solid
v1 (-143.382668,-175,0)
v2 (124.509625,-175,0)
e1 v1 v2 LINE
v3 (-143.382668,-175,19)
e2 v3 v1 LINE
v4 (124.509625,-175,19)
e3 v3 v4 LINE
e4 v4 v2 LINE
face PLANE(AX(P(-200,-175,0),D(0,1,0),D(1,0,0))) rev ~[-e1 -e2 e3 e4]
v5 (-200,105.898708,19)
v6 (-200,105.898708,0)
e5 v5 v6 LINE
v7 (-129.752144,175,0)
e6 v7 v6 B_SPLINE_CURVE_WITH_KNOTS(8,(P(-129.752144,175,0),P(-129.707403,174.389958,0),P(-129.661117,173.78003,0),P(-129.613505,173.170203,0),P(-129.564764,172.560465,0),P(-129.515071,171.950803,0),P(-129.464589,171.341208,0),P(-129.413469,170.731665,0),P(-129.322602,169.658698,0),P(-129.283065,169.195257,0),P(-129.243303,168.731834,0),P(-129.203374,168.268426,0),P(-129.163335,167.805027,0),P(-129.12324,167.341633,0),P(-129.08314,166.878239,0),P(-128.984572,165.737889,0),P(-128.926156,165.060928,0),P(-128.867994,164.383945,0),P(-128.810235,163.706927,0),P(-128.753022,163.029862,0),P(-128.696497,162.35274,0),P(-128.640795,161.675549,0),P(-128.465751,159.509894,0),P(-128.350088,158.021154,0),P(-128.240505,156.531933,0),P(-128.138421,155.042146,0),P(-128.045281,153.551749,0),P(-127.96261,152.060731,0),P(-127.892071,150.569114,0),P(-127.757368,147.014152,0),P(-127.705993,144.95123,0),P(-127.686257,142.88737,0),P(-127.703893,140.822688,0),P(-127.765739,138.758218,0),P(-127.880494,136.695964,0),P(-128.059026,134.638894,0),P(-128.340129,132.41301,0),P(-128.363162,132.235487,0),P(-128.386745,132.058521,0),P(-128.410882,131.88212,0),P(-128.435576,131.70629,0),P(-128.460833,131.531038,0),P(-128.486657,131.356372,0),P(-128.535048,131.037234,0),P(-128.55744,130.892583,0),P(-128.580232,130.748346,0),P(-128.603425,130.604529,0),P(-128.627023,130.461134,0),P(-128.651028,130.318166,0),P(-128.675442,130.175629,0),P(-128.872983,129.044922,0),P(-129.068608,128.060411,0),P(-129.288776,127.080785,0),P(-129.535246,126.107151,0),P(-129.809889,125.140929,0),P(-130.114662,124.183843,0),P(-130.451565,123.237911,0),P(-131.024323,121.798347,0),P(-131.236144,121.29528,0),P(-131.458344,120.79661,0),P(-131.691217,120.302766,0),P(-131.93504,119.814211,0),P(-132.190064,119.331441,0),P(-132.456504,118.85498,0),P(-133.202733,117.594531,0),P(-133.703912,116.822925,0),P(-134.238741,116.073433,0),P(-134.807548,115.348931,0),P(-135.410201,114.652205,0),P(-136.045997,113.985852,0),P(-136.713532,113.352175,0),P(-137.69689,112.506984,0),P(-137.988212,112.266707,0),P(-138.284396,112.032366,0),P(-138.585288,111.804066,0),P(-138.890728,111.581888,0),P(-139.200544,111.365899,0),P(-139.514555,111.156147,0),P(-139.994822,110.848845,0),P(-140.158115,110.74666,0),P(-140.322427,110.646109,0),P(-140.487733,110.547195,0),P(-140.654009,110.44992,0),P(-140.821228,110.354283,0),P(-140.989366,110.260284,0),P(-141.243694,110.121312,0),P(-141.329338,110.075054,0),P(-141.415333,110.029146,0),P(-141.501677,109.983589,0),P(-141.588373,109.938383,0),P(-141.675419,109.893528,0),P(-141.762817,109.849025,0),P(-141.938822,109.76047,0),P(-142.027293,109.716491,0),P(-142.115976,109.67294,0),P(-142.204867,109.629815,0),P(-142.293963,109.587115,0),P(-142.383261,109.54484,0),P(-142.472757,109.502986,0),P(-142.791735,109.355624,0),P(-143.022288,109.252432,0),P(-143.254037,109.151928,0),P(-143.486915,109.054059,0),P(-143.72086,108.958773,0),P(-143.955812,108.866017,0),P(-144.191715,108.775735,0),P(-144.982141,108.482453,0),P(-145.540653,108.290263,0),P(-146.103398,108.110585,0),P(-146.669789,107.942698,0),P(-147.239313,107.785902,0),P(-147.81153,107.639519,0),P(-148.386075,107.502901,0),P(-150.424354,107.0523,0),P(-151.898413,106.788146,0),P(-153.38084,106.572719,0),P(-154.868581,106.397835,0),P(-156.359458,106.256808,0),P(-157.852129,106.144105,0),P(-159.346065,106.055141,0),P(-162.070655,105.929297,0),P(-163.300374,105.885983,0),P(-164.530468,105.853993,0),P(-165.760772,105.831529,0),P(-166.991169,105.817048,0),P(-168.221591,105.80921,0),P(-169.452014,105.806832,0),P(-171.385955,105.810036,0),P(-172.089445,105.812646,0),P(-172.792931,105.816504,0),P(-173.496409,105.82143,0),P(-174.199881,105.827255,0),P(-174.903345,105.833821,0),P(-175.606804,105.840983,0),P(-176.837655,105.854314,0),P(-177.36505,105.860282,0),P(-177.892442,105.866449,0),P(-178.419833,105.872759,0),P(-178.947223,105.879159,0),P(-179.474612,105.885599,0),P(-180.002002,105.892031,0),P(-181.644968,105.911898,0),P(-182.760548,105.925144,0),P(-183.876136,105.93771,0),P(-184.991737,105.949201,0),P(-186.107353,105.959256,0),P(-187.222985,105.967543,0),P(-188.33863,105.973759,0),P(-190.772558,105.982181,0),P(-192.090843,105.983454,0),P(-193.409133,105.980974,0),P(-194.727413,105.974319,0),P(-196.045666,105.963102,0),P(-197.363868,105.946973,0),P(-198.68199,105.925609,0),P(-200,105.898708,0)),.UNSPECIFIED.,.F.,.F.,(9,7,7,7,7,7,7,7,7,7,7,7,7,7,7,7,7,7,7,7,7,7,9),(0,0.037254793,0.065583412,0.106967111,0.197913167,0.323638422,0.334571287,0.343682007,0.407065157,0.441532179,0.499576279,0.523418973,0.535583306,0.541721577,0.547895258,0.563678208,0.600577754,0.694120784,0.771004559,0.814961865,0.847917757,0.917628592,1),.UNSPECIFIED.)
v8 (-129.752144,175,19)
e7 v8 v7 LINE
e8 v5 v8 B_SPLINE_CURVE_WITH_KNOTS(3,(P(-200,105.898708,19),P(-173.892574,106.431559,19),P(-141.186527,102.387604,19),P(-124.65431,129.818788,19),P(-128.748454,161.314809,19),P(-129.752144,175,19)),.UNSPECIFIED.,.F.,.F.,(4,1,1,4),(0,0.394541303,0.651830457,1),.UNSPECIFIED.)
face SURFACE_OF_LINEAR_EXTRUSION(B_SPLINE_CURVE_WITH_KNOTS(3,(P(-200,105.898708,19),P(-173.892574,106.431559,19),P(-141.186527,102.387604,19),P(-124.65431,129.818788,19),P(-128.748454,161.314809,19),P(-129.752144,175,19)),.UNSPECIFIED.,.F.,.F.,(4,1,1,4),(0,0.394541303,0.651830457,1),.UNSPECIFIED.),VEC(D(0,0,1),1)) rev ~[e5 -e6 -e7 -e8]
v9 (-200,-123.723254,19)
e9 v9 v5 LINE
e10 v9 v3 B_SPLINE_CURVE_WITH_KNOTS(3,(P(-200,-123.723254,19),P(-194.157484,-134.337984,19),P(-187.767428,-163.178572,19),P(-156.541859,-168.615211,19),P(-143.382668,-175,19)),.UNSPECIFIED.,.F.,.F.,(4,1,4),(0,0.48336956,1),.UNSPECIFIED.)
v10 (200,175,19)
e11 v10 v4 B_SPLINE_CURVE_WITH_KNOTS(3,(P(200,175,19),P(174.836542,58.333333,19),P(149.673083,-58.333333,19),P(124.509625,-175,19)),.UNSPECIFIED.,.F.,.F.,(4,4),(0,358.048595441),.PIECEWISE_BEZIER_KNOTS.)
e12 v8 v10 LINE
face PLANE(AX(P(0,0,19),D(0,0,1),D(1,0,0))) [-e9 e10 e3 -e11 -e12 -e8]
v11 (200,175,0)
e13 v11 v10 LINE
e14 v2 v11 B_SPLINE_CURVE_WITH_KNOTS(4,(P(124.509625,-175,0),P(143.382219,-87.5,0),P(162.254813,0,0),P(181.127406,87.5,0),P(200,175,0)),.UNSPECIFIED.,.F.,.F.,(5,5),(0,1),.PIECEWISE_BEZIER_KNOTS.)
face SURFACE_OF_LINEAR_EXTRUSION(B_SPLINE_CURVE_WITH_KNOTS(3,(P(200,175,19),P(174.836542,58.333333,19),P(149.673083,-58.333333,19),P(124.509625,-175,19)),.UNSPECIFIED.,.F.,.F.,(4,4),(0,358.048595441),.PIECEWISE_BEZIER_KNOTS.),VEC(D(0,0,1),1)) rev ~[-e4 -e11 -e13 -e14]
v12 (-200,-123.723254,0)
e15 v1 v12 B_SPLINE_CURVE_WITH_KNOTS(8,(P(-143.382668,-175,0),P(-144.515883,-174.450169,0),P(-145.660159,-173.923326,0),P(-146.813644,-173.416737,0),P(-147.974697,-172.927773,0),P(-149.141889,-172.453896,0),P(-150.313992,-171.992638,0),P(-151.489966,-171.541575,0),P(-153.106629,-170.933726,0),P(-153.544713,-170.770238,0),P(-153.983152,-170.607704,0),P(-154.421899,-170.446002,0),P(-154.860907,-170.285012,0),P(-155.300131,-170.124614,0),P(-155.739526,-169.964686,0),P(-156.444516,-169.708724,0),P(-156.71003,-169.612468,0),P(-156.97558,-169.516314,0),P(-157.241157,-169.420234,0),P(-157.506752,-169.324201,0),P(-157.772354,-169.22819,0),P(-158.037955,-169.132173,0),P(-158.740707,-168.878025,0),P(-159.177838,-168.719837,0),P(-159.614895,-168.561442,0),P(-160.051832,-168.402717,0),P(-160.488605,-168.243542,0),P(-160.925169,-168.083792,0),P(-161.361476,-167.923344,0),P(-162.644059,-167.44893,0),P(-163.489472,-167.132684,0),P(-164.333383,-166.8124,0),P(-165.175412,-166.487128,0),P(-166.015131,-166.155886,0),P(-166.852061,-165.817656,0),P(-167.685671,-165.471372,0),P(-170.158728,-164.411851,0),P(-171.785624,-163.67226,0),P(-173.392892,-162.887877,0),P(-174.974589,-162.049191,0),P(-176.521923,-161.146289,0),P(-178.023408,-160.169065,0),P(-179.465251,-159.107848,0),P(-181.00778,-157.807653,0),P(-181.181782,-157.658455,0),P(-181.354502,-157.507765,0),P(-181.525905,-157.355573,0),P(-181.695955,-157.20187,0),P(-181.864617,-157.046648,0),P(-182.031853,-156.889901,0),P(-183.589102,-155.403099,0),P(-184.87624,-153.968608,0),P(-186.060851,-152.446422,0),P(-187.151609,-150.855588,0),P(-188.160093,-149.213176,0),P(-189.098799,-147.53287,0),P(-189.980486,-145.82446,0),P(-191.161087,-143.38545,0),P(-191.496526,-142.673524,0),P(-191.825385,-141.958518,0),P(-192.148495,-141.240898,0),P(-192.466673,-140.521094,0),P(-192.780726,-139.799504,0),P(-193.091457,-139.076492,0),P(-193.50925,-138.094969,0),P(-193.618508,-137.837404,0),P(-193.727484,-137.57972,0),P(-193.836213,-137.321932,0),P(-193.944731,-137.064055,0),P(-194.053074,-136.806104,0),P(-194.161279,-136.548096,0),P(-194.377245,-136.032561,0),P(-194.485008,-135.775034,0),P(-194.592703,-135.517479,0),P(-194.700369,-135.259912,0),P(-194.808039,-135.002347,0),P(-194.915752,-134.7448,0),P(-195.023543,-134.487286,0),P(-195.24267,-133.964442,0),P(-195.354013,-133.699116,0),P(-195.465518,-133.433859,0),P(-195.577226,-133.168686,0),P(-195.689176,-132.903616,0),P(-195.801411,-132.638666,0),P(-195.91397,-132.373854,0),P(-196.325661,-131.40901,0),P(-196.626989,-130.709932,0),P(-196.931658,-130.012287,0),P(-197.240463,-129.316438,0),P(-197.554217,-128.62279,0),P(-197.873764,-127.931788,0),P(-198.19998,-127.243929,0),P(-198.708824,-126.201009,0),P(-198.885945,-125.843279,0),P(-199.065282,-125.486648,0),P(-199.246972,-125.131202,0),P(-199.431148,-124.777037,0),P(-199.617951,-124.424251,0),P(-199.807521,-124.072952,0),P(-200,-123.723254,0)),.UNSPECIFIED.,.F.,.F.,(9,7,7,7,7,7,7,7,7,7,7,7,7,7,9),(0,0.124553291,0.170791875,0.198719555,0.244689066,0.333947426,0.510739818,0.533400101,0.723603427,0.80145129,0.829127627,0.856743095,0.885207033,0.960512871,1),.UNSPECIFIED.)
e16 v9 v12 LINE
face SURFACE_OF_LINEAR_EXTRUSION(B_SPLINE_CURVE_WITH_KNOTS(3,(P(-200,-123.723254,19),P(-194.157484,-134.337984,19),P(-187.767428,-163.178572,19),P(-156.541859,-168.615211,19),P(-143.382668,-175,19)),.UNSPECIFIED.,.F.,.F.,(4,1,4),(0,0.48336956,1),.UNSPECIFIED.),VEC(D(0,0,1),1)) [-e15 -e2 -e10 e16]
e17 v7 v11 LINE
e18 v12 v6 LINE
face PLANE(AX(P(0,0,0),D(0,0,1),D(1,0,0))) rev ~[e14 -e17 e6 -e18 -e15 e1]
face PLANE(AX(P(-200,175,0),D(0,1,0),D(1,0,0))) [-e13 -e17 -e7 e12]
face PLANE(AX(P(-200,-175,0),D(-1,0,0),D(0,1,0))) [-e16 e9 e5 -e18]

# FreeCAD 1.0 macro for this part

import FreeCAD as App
import Part
import Sketcher
from FreeCAD import Vector


def add_polygon(sketch, points):
    """Adds a closed chain of lines whose ends are joined by coincident constraints."""
    first, n = sketch.GeometryCount, len(points)
    for a, b in zip(points, points[1:] + points[:1]):
        sketch.addGeometry(Part.LineSegment(App.Vector(*a, 0), App.Vector(*b, 0)), False)
    for i in range(n):
        sketch.addConstraint(Sketcher.Constraint("Coincident", first + i, 2, first + (i + 1) % n, 1))

doc = App.newDocument("Part")
body = doc.addObject("PartDesign::Body", "Body")

# Sketch on XY plane
sketch1 = body.newObject("Sketcher::SketchObject", "Sketch")
sketch1.AttachmentSupport = (doc.getObject("XY_Plane"), [""])
sketch1.MapMode = "FlatFace"
add_polygon(sketch1, [(-200, 175), (-200, -175), (200, -175), (200, 175)])  # lines 0-3
sketch1.addConstraint([
    Sketcher.Constraint("Vertical", 0),
    Sketcher.Constraint("Horizontal", 1),
    Sketcher.Constraint("Vertical", 2),
    Sketcher.Constraint("Horizontal", 3),
    Sketcher.Constraint("Symmetric", 0, 2, 2, 2, -1, 1),
    Sketcher.Constraint("DistanceX", 1, 1, 1, 2, 400.0),
    Sketcher.Constraint("DistanceY", 0, 2, 0, 1, 350.0),
])
pad1 = body.newObject("PartDesign::Pad", "Pad")
pad1.Profile = sketch1
pad1.Length = 19

# Sketch on XY plane
sketch2 = body.newObject("Sketcher::SketchObject", "Sketch001")
sketch2.AttachmentSupport = (doc.getObject("XY_Plane"), [""])
sketch2.MapMode = "FlatFace"
sketch2.AttachmentOffset = App.Placement(Vector(0, 0, 19), App.Rotation())
sketch2.addGeometry([
    Part.LineSegment(Vector(-200, 175, 0), Vector(-200, 105.898708, 0)),
    Part.BSplineCurve([Vector(-200, 105.898708, 0), Vector(-173.892574, 106.431559, 0), Vector(-141.186527, 102.387604, 0), Vector(-124.65431, 129.818788, 0), Vector(-128.748454, 161.314809, 0), Vector(-129.752144, 175, 0)], [4, 1, 1, 4], [0, 0.394541303, 0.651830457, 1], False, 3, [1, 1, 1, 1, 1, 1], False),
    Part.LineSegment(Vector(-129.752144, 175, 0), Vector(-200, 175, 0)),
], False)
sketch2.addConstraint([
    Sketcher.Constraint("Block", 1),
    Sketcher.Constraint("Coincident", 0, 2, 1, 1),
    Sketcher.Constraint("Coincident", 1, 2, 2, 1),
    Sketcher.Constraint("Coincident", 2, 2, 0, 1),
    Sketcher.Constraint("Vertical", 0),
    Sketcher.Constraint("Horizontal", 2),
])
pocket1 = body.newObject("PartDesign::Pocket", "Pocket")
pocket1.Profile = sketch2
pocket1.Type = "ThroughAll"

# Sketch on XY plane
sketch3 = body.newObject("Sketcher::SketchObject", "Sketch002")
sketch3.AttachmentSupport = (doc.getObject("XY_Plane"), [""])
sketch3.MapMode = "FlatFace"
sketch3.AttachmentOffset = App.Placement(Vector(0, 0, 19), App.Rotation())
sketch3.addGeometry([
    Part.BSplineCurve([Vector(200, 175, 0), Vector(200, 58.333333, 0), Vector(200, -58.333333, 0), Vector(200, -175, 0)], [4, 4], [0, 350], False, 3, [1, 1, 1, 1], False),
    Part.BSplineCurve([Vector(200, 175, 0), Vector(174.836542, 58.333333, 0), Vector(149.673083, -58.333333, 0), Vector(124.509625, -175, 0)], [4, 4], [0, 358.048595441], False, 3, [1, 1, 1, 1], False),
    Part.BSplineCurve([Vector(200, -175, 0), Vector(174.836542, -175, 0), Vector(149.673083, -175, 0), Vector(124.509625, -175, 0)], [4, 4], [0, 75.490374863], False, 3, [1, 1, 1, 1], False),
], False)
sketch3.addConstraint([
    Sketcher.Constraint("Block", 0),
    Sketcher.Constraint("Block", 1),
    Sketcher.Constraint("Block", 2),
])
pocket2 = body.newObject("PartDesign::Pocket", "Pocket001")
pocket2.Profile = sketch3
pocket2.Type = "ThroughAll"

# Sketch on XY plane
sketch4 = body.newObject("Sketcher::SketchObject", "Sketch003")
sketch4.AttachmentSupport = (doc.getObject("XY_Plane"), [""])
sketch4.MapMode = "FlatFace"
sketch4.AttachmentOffset = App.Placement(Vector(0, 0, 19), App.Rotation())
sketch4.addGeometry([
    Part.BSplineCurve([Vector(-200, -123.723254, 0), Vector(-194.157484, -134.337984, 0), Vector(-187.767428, -163.178572, 0), Vector(-156.541859, -168.615211, 0), Vector(-143.382668, -175, 0)], [4, 1, 4], [0, 0.48336956, 1], False, 3, [1, 1, 1, 1, 1], False),
    Part.LineSegment(Vector(-200, -123.723254, 0), Vector(-200, -175, 0)),
    Part.LineSegment(Vector(-200, -175, 0), Vector(-143.382668, -175, 0)),
], False)
sketch4.addConstraint([
    Sketcher.Constraint("Block", 0),
    Sketcher.Constraint("Coincident", 0, 1, 1, 1),
    Sketcher.Constraint("Coincident", 1, 2, 2, 1),
    Sketcher.Constraint("Coincident", 2, 2, 0, 2),
    Sketcher.Constraint("Vertical", 1),
    Sketcher.Constraint("Horizontal", 2),
])
pocket3 = body.newObject("PartDesign::Pocket", "Pocket002")
pocket3.Profile = sketch4
pocket3.Type = "ThroughAll"

doc.recompute()
